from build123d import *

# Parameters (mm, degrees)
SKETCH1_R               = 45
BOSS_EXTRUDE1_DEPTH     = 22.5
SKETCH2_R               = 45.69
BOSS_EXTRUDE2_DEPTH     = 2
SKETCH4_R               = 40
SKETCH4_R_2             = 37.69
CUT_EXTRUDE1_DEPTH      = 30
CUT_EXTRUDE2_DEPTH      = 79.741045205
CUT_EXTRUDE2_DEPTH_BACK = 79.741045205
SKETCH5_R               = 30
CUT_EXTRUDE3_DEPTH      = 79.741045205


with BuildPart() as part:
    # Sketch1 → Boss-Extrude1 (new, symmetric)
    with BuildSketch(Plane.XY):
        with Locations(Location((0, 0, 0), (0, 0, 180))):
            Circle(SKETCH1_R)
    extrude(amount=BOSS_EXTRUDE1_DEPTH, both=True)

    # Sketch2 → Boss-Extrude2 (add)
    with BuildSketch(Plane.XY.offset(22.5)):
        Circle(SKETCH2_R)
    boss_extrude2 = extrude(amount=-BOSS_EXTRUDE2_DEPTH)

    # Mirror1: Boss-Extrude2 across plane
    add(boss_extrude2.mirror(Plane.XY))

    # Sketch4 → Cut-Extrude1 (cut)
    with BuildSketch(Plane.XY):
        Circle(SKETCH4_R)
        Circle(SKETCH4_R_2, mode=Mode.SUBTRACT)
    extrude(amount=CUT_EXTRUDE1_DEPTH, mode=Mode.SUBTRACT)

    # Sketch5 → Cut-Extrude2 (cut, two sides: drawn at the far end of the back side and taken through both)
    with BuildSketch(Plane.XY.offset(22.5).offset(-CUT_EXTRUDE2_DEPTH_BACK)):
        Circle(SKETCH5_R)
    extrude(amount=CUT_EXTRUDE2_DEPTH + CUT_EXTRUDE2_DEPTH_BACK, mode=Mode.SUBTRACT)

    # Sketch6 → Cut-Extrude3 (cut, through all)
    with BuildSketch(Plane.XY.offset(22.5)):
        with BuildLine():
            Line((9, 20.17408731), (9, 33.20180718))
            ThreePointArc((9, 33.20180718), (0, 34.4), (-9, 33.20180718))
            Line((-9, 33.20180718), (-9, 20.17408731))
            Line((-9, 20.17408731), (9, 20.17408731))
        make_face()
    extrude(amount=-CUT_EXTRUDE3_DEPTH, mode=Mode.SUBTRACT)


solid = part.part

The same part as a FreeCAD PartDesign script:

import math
import FreeCAD as App
import Part
import Sketcher
from FreeCAD import Vector

doc = App.newDocument("Part")
params = doc.addObject("Spreadsheet::Sheet", "Params")
for row, (alias, value) in enumerate([
    ("sketch1_diameter", "90 mm"),
    ("pad1_length", "45 mm"),
    ("sketch2_diameter", "91.38 mm"),
    ("pad2_length", "2 mm"),
    ("sketch3_diameter", "80 mm"),
    ("sketch3_diameter2", "75.38 mm"),
    ("pocket1_length", "30 mm"),
    ("sketch4_diameter", "60 mm"),
    ("sketch5_radius", "34.4 mm"),
    ("sketch5_width", "18 mm"),
], start=1):
    params.set(f"A{row}", alias)
    params.set(f"B{row}", "=" + value)
    params.setAlias(f"B{row}", alias)

body = doc.addObject("PartDesign::Body", "Body")

# Sketch on XY plane
sketch1 = body.newObject("Sketcher::SketchObject", "Sketch")
sketch1.AttachmentSupport = (doc.getObject("XY_Plane"), [""])
sketch1.MapMode = "FlatFace"
sketch1.addGeometry(Part.Circle(Vector(0, 0, 0), Vector(0, 0, 1), 45), False)
sketch1.addConstraint(Sketcher.Constraint("Coincident", 0, 3, -1, 1))
sketch1.addConstraint(Sketcher.Constraint("Diameter", 0, 90.0))
sketch1.setExpression("Constraints[1]", "Params.sketch1_diameter")
pad1 = body.newObject("PartDesign::Pad", "Pad")
pad1.Profile = sketch1
pad1.setExpression("Length", "Params.pad1_length")
pad1.Midplane = True

# Sketch on XY plane
sketch2 = body.newObject("Sketcher::SketchObject", "Sketch001")
sketch2.AttachmentSupport = (doc.getObject("XY_Plane"), [""])
sketch2.MapMode = "FlatFace"
sketch2.AttachmentOffset = App.Placement(Vector(0, 0, 22.5), App.Rotation())
sketch2.addGeometry(Part.Circle(Vector(0, 0, 0), Vector(0, 0, 1), 46), False)
sketch2.addConstraint(Sketcher.Constraint("Coincident", 0, 3, -1, 1))
sketch2.addConstraint(Sketcher.Constraint("Diameter", 0, 91.38))
sketch2.setExpression("Constraints[1]", "Params.sketch2_diameter")
pad2 = body.newObject("PartDesign::Pad", "Pad001")
pad2.Profile = sketch2
pad2.setExpression("Length", "Params.pad2_length")
pad2.Reversed = True
doc.recompute()

mirrored = body.newObject("PartDesign::Mirrored", "Mirrored")
mirrored.Originals = [pad2]
mirrored.MirrorPlane = (doc.getObject("XY_Plane"), [""])
body.Tip = mirrored

# Sketch on XY plane
sketch3 = body.newObject("Sketcher::SketchObject", "Sketch002")
sketch3.AttachmentSupport = (doc.getObject("XY_Plane"), [""])
sketch3.MapMode = "FlatFace"
sketch3.addGeometry(Part.Circle(Vector(0, 0, 0), Vector(0, 0, 1), 40), False)
sketch3.addGeometry(Part.Circle(Vector(0, 0, 0), Vector(0, 0, 1), 38), False)
sketch3.addConstraint(Sketcher.Constraint("Coincident", 0, 3, -1, 1))
sketch3.addConstraint(Sketcher.Constraint("Coincident", 1, 3, -1, 1))
sketch3.addConstraint(Sketcher.Constraint("Diameter", 0, 80.0))
sketch3.addConstraint(Sketcher.Constraint("Diameter", 1, 75.38))
sketch3.setExpression("Constraints[2]", "Params.sketch3_diameter")
sketch3.setExpression("Constraints[3]", "Params.sketch3_diameter2")
pocket1 = body.newObject("PartDesign::Pocket", "Pocket")
pocket1.Profile = sketch3
pocket1.setExpression("Length", "Params.pocket1_length")
pocket1.Reversed = True

# Sketch on XY plane
sketch4 = body.newObject("Sketcher::SketchObject", "Sketch003")
sketch4.AttachmentSupport = (doc.getObject("XY_Plane"), [""])
sketch4.MapMode = "FlatFace"
sketch4.AttachmentOffset = App.Placement(Vector(0, 0, 22.5), App.Rotation())
sketch4.addGeometry(Part.Circle(Vector(0, 0, 0), Vector(0, 0, 1), 30), False)
sketch4.addConstraint(Sketcher.Constraint("Coincident", 0, 3, -1, 1))
sketch4.addConstraint(Sketcher.Constraint("Diameter", 0, 60.0))
sketch4.setExpression("Constraints[1]", "Params.sketch4_diameter")
pocket2 = body.newObject("PartDesign::Pocket", "Pocket001")
pocket2.Profile = sketch4
pocket2.Type = "ThroughAll"
pocket2.Midplane = True

# Sketch on XY plane
sketch5 = body.newObject("Sketcher::SketchObject", "Sketch004")
sketch5.AttachmentSupport = (doc.getObject("XY_Plane"), [""])
sketch5.MapMode = "FlatFace"
sketch5.AttachmentOffset = App.Placement(Vector(0, 0, 22.5), App.Rotation())
sketch5.addGeometry(Part.LineSegment(Vector(9, 20, 0), Vector(9, 33, 0)), False)
sketch5.addGeometry(Part.ArcOfCircle(Part.Circle(Vector(0, 0, 0), Vector(0, 0, 1), 34), math.radians(75), math.radians(105)), False)
sketch5.addGeometry(Part.LineSegment(Vector(-9, 33, 0), Vector(-9, 20, 0)), False)
sketch5.addGeometry(Part.LineSegment(Vector(-9, 20, 0), Vector(9, 20, 0)), False)
sketch5.addConstraint(Sketcher.Constraint("Coincident", 0, 2, 1, 1))
sketch5.addConstraint(Sketcher.Constraint("Coincident", 1, 2, 2, 1))
sketch5.addConstraint(Sketcher.Constraint("Coincident", 2, 2, 3, 1))
sketch5.addConstraint(Sketcher.Constraint("Coincident", 3, 2, 0, 1))
sketch5.addConstraint(Sketcher.Constraint("Vertical", 0))
sketch5.addConstraint(Sketcher.Constraint("Vertical", 2))
sketch5.addConstraint(Sketcher.Constraint("Horizontal", 3))
sketch5.addConstraint(Sketcher.Constraint("Coincident", 1, 3, -1, 1))
sketch5.addConstraint(Sketcher.Constraint("Horizontal", 0, 2, 1, 2))
sketch5.addConstraint(Sketcher.Constraint("Radius", 1, 34.4))
sketch5.addConstraint(Sketcher.Constraint("DistanceX", 3, 1, 3, 2, 18.0))
sketch5.addConstraint(Sketcher.Constraint("DistanceY", 0, 1, 0, 2, 13.02772))
sketch5.setExpression("Constraints[9]", "Params.sketch5_radius")
sketch5.setExpression("Constraints[10]", "Params.sketch5_width")
pocket3 = body.newObject("PartDesign::Pocket", "Pocket002")
pocket3.Profile = sketch5
pocket3.Type = "ThroughAll"

doc.recompute()
